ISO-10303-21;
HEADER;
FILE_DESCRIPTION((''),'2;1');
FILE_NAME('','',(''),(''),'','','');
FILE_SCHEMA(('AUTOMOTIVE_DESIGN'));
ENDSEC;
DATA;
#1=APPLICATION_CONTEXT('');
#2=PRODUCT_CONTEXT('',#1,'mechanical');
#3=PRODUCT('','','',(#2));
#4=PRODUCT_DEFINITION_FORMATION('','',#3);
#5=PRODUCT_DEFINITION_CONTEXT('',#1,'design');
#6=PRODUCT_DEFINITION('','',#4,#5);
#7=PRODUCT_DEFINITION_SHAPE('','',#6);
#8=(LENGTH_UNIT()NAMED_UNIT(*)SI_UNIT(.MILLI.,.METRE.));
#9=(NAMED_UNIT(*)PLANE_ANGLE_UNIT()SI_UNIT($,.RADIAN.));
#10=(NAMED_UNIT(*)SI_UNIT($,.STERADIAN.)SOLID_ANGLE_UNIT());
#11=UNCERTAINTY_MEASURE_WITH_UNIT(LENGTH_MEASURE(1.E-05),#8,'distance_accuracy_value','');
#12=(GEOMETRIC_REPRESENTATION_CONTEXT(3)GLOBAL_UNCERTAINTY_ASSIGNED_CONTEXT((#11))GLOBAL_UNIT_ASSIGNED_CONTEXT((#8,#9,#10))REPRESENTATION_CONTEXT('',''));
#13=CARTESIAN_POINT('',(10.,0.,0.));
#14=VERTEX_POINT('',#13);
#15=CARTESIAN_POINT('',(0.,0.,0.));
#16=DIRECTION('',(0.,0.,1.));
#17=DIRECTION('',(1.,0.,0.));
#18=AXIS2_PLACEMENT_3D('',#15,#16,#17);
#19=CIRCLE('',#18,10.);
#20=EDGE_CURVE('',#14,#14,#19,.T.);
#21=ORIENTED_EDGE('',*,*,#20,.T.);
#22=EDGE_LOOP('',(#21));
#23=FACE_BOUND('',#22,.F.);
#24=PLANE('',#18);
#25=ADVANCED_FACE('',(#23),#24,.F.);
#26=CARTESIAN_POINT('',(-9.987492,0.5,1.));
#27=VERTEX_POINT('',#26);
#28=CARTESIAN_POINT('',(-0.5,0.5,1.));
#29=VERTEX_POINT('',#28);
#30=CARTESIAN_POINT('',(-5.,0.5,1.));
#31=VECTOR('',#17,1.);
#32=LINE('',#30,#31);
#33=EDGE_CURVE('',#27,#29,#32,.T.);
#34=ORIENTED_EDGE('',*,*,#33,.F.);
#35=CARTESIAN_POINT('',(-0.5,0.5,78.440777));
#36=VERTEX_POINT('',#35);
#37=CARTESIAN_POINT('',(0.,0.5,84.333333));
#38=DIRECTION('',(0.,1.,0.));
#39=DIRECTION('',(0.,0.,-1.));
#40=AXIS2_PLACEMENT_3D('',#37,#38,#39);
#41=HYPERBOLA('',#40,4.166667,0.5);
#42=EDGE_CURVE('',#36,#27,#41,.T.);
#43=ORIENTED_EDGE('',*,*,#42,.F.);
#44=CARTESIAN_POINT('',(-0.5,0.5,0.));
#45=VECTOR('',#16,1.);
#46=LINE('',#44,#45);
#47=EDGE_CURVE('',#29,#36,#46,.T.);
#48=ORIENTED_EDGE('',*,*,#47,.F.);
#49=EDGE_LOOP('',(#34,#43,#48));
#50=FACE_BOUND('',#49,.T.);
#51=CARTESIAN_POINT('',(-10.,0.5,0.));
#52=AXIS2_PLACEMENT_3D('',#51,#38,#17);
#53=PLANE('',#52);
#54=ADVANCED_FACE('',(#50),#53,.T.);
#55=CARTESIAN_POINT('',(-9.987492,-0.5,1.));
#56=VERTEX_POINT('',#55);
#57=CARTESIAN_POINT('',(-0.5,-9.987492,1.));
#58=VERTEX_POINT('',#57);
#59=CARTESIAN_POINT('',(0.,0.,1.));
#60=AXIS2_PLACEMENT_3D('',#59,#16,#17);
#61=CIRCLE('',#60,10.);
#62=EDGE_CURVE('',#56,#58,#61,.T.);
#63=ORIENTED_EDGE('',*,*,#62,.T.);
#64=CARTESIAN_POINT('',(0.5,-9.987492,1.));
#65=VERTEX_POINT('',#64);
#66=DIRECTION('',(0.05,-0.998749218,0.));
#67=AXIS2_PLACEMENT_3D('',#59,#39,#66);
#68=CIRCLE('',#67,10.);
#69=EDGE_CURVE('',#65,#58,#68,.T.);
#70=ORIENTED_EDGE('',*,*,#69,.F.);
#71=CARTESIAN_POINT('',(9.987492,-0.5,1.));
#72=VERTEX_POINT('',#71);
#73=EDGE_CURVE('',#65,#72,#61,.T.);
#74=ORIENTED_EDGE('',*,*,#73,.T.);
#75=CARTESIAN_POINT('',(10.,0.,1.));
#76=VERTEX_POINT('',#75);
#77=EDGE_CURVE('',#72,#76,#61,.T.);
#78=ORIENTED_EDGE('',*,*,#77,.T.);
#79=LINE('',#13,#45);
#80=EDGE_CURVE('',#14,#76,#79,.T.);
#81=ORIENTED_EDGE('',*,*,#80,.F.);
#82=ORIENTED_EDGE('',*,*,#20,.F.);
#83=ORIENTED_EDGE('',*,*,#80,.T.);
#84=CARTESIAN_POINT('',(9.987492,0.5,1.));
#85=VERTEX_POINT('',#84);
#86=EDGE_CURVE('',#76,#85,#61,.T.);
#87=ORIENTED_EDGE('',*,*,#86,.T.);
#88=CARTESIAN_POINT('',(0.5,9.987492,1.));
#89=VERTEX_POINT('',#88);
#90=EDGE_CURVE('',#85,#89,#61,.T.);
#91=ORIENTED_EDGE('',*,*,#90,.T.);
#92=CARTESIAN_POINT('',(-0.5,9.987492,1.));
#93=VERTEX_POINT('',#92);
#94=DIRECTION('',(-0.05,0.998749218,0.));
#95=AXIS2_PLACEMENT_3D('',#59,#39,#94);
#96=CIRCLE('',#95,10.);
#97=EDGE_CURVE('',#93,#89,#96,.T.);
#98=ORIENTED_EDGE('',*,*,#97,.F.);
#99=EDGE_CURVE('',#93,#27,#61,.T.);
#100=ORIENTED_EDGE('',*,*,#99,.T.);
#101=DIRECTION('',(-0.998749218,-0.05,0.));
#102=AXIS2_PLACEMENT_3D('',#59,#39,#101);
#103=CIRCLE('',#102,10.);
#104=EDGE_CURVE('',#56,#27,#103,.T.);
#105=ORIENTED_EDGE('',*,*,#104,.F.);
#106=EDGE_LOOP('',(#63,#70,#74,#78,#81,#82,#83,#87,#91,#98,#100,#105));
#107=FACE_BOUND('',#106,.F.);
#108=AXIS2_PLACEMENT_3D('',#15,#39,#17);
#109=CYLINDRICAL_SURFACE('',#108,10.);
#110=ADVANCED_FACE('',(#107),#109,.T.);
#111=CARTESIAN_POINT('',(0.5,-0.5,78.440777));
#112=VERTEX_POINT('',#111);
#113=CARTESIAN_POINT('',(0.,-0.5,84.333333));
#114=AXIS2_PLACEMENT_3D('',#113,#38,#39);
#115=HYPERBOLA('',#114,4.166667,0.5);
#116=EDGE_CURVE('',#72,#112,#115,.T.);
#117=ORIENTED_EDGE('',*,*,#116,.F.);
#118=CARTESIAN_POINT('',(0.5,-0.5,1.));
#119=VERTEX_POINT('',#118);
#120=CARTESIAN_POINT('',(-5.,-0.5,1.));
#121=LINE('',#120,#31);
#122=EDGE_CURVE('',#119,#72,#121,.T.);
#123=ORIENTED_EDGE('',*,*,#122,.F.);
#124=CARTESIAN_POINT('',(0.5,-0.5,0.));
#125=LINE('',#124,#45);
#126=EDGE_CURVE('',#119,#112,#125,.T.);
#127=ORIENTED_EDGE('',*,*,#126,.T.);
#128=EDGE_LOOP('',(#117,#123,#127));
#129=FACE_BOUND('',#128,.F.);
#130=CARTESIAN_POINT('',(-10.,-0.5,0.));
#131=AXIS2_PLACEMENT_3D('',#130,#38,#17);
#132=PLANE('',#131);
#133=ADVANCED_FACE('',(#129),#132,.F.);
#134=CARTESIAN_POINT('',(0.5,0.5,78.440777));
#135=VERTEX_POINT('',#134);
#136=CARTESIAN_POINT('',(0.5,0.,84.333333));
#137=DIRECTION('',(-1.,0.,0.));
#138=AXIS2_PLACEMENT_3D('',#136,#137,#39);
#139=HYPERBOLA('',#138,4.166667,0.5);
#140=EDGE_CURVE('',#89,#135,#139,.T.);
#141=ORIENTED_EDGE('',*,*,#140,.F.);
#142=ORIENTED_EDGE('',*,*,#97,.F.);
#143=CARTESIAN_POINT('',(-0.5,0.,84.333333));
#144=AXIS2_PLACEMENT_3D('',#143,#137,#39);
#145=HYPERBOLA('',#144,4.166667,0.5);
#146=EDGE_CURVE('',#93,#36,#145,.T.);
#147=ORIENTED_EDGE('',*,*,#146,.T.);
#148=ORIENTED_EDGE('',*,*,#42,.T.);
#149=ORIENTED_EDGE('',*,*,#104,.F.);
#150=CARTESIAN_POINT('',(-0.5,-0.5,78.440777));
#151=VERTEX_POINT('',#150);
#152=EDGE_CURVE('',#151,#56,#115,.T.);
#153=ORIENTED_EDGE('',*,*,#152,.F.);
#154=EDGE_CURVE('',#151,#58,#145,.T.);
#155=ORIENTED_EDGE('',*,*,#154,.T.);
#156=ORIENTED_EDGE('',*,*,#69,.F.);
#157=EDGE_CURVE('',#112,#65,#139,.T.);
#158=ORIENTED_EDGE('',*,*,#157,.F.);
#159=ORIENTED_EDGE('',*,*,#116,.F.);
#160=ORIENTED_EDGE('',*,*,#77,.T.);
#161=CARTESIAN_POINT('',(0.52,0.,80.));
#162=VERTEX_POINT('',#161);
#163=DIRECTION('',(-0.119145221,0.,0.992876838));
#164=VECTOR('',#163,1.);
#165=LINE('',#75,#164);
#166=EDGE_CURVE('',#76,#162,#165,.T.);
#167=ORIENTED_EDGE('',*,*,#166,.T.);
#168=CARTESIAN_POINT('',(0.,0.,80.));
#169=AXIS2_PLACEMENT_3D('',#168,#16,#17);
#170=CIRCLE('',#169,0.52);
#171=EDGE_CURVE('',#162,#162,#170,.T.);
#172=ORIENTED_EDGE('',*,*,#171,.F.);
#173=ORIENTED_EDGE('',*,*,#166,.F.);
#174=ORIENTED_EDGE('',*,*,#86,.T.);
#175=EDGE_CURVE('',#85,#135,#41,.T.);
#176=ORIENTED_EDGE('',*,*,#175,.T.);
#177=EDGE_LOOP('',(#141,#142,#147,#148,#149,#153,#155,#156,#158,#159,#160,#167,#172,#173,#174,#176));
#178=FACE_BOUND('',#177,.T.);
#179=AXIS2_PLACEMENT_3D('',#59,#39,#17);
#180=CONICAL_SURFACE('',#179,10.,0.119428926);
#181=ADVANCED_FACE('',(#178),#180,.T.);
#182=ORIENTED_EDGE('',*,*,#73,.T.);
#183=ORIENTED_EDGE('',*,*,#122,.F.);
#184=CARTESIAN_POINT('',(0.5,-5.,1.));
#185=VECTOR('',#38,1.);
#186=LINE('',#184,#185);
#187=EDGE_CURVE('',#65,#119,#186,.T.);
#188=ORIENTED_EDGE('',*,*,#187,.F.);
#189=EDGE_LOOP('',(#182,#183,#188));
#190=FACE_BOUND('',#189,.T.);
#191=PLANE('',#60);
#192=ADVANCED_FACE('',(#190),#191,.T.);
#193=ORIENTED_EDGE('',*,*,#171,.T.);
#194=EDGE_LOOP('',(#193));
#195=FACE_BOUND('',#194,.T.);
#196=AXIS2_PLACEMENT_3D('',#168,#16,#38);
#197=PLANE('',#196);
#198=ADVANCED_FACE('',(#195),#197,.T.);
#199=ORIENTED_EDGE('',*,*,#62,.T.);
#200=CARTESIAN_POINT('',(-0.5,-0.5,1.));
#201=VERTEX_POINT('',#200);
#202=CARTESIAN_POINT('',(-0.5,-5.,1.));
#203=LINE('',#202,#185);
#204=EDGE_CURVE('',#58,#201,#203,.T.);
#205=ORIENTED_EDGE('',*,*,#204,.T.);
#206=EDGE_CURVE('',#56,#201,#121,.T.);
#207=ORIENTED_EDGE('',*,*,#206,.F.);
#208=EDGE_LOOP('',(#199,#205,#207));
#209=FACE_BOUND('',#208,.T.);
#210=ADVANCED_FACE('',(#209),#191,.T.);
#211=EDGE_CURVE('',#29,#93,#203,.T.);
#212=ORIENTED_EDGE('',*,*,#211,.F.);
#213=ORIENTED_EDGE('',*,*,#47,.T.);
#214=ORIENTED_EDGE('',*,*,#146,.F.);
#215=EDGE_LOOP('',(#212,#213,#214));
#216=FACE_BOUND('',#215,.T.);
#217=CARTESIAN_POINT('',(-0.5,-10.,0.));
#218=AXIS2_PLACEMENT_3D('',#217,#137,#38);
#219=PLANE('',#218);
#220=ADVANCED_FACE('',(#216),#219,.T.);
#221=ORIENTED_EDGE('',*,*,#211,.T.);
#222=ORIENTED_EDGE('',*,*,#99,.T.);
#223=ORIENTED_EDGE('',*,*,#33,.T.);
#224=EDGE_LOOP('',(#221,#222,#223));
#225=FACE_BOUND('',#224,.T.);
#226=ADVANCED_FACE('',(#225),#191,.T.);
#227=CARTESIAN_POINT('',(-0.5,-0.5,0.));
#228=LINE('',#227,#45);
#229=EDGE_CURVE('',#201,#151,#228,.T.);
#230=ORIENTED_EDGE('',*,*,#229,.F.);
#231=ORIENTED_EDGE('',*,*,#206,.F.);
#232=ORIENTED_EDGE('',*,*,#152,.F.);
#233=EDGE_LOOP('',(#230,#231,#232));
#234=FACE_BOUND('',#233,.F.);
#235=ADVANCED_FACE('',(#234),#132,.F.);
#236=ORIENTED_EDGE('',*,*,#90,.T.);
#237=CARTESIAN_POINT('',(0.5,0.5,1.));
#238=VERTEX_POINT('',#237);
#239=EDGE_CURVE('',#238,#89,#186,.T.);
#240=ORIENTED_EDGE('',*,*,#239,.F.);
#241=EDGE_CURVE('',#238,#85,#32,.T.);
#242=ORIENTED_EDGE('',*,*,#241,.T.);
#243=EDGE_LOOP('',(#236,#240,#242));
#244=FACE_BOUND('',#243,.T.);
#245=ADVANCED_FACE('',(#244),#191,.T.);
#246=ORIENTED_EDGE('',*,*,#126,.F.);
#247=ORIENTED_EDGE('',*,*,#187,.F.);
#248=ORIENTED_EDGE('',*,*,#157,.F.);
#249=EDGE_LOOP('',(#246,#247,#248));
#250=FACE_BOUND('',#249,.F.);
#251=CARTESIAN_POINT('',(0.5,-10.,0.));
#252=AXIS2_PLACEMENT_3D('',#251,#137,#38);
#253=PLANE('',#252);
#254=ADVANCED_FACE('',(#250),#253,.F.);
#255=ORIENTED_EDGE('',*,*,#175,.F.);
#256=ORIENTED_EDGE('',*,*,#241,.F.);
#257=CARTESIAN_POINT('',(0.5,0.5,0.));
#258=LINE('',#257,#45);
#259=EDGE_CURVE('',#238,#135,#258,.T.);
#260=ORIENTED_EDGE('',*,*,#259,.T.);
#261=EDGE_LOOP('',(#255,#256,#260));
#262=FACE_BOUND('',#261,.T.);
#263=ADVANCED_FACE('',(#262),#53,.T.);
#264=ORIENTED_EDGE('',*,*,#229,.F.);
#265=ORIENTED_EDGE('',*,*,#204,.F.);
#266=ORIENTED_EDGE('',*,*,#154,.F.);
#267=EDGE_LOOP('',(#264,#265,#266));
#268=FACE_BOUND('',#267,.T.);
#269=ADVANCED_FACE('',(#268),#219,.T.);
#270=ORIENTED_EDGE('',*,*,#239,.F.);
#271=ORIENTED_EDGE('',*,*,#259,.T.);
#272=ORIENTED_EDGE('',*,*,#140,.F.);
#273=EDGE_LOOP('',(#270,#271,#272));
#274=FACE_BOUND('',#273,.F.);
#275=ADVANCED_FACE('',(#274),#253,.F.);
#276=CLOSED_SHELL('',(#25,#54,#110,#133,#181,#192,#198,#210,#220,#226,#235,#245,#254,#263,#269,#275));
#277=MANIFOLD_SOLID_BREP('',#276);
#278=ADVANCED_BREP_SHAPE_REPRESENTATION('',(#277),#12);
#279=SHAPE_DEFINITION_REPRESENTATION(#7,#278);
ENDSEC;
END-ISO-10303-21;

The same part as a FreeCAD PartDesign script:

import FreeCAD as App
import Part
import Sketcher

doc = App.newDocument("Part")
body = doc.addObject("PartDesign::Body", "Body")

# Sketch on XY plane
sketch1 = body.newObject("Sketcher::SketchObject", "Sketch")
sketch1.AttachmentSupport = (doc.getObject("XY_Plane"), [""])
sketch1.MapMode = "FlatFace"
sketch1.addGeometry(Part.Circle(App.Vector(0, 0, 0), App.Vector(0, 0, 1), 10), False)
sketch1.addConstraint(Sketcher.Constraint("Coincident", 0, 3, -1, 1))
sketch1.addConstraint(Sketcher.Constraint("Diameter", 0, 20.0))
pad1 = body.newObject("PartDesign::Pad", "Pad")
pad1.Profile = sketch1
pad1.Length = 1
body2 = doc.addObject("PartDesign::Body", "Body001")

# Sketch on XY plane
sketch2 = body2.newObject("Sketcher::SketchObject", "Sketch001")
sketch2.AttachmentSupport = (doc.getObject("XY_Plane001"), [""])
sketch2.MapMode = "FlatFace"
sketch2.addGeometry(Part.LineSegment(App.Vector(-0.5, -10, 0), App.Vector(0.5, -10, 0)), False)
sketch2.addGeometry(Part.LineSegment(App.Vector(0.5, -10, 0), App.Vector(0.5, 10, 0)), False)
sketch2.addGeometry(Part.LineSegment(App.Vector(0.5, 10, 0), App.Vector(-0.5, 10, 0)), False)
sketch2.addGeometry(Part.LineSegment(App.Vector(-0.5, 10, 0), App.Vector(-0.5, -10, 0)), False)
sketch2.addConstraint(Sketcher.Constraint("Coincident", 0, 2, 1, 1))
sketch2.addConstraint(Sketcher.Constraint("Coincident", 1, 2, 2, 1))
sketch2.addConstraint(Sketcher.Constraint("Coincident", 2, 2, 3, 1))
sketch2.addConstraint(Sketcher.Constraint("Coincident", 3, 2, 0, 1))
sketch2.addConstraint(Sketcher.Constraint("Horizontal", 0))
sketch2.addConstraint(Sketcher.Constraint("Vertical", 1))
sketch2.addConstraint(Sketcher.Constraint("Horizontal", 2))
sketch2.addConstraint(Sketcher.Constraint("Vertical", 3))
sketch2.addConstraint(Sketcher.Constraint("Symmetric", 0, 2, 2, 2, -1, 1))
sketch2.addConstraint(Sketcher.Constraint("DistanceX", 0, 1, 0, 2, 1.0))
sketch2.addConstraint(Sketcher.Constraint("DistanceY", 1, 1, 1, 2, 20.0))
pad2 = body2.newObject("PartDesign::Pad", "Pad001")
pad2.Profile = sketch2
pad2.Length = 80
body3 = doc.addObject("PartDesign::Body", "Body002")

# Sketch on XY plane
sketch3 = body3.newObject("Sketcher::SketchObject", "Sketch002")
sketch3.AttachmentSupport = (doc.getObject("XY_Plane002"), [""])
sketch3.MapMode = "FlatFace"
sketch3.addGeometry(Part.LineSegment(App.Vector(-10, 0.5, 0), App.Vector(-10, -0.5, 0)), False)
sketch3.addGeometry(Part.LineSegment(App.Vector(-10, -0.5, 0), App.Vector(10, -0.5, 0)), False)
sketch3.addGeometry(Part.LineSegment(App.Vector(10, -0.5, 0), App.Vector(10, 0.5, 0)), False)
sketch3.addGeometry(Part.LineSegment(App.Vector(10, 0.5, 0), App.Vector(-10, 0.5, 0)), False)
sketch3.addConstraint(Sketcher.Constraint("Coincident", 0, 2, 1, 1))
sketch3.addConstraint(Sketcher.Constraint("Coincident", 1, 2, 2, 1))
sketch3.addConstraint(Sketcher.Constraint("Coincident", 2, 2, 3, 1))
sketch3.addConstraint(Sketcher.Constraint("Coincident", 3, 2, 0, 1))
sketch3.addConstraint(Sketcher.Constraint("Vertical", 0))
sketch3.addConstraint(Sketcher.Constraint("Horizontal", 1))
sketch3.addConstraint(Sketcher.Constraint("Vertical", 2))
sketch3.addConstraint(Sketcher.Constraint("Horizontal", 3))
sketch3.addConstraint(Sketcher.Constraint("Symmetric", 0, 2, 2, 2, -1, 1))
sketch3.addConstraint(Sketcher.Constraint("DistanceX", 1, 1, 1, 2, 20.0))
sketch3.addConstraint(Sketcher.Constraint("DistanceY", 0, 2, 0, 1, 1.0))
pad3 = body3.newObject("PartDesign::Pad", "Pad002")
pad3.Profile = sketch3
pad3.Length = 80
doc.recompute()

boolean = body3.newObject("PartDesign::Boolean", "Boolean")
boolean.Type = "Fuse"
boolean.addObjects([body2])
body4 = doc.addObject("PartDesign::Body", "Body003")

# Sketch on XZ plane
sketch4 = body4.newObject("Sketcher::SketchObject", "Sketch003")
sketch4.AttachmentSupport = (doc.getObject("XZ_Plane003"), [""])
sketch4.MapMode = "FlatFace"
sketch4.addGeometry(Part.LineSegment(App.Vector(0, 1, 0), App.Vector(10, 1, 0)), False)
sketch4.addGeometry(Part.LineSegment(App.Vector(10, 1, 0), App.Vector(0.4, 81, 0)), False)
sketch4.addGeometry(Part.LineSegment(App.Vector(0.4, 81, 0), App.Vector(0, 81, 0)), False)
sketch4.addGeometry(Part.LineSegment(App.Vector(0, 81, 0), App.Vector(0, 1, 0)), False)
sketch4.addConstraint(Sketcher.Constraint("Coincident", 0, 2, 1, 1))
sketch4.addConstraint(Sketcher.Constraint("Coincident", 1, 2, 2, 1))
sketch4.addConstraint(Sketcher.Constraint("Coincident", 2, 2, 3, 1))
sketch4.addConstraint(Sketcher.Constraint("Coincident", 3, 2, 0, 1))
sketch4.addConstraint(Sketcher.Constraint("Horizontal", 0))
sketch4.addConstraint(Sketcher.Constraint("Horizontal", 2))
sketch4.addConstraint(Sketcher.Constraint("Vertical", 3))
sketch4.addConstraint(Sketcher.Constraint("PointOnObject", 2, 2, -2))
sketch4.addConstraint(Sketcher.Constraint("DistanceX", 0, 1, 0, 2, 10.0))
sketch4.addConstraint(Sketcher.Constraint("DistanceY", 3, 2, 3, 1, 80.0))
sketch4.addConstraint(Sketcher.Constraint("DistanceX", 2, 2, 2, 1, 0.4))
sketch4.addConstraint(Sketcher.Constraint("DistanceY", -1, 1, 0, 2, 1.0))
revolution = body4.newObject("PartDesign::Revolution", "Revolution")
revolution.Profile = sketch4
revolution.ReferenceAxis = (sketch4, ["V_Axis"])
revolution.Angle = 360
doc.recompute()

boolean2 = body4.newObject("PartDesign::Boolean", "Boolean001")
boolean2.Type = "Common"
boolean2.addObjects([body3])
doc.recompute()

boolean3 = body4.newObject("PartDesign::Boolean", "Boolean002")
boolean3.Type = "Fuse"
boolean3.addObjects([body])

doc.recompute()
